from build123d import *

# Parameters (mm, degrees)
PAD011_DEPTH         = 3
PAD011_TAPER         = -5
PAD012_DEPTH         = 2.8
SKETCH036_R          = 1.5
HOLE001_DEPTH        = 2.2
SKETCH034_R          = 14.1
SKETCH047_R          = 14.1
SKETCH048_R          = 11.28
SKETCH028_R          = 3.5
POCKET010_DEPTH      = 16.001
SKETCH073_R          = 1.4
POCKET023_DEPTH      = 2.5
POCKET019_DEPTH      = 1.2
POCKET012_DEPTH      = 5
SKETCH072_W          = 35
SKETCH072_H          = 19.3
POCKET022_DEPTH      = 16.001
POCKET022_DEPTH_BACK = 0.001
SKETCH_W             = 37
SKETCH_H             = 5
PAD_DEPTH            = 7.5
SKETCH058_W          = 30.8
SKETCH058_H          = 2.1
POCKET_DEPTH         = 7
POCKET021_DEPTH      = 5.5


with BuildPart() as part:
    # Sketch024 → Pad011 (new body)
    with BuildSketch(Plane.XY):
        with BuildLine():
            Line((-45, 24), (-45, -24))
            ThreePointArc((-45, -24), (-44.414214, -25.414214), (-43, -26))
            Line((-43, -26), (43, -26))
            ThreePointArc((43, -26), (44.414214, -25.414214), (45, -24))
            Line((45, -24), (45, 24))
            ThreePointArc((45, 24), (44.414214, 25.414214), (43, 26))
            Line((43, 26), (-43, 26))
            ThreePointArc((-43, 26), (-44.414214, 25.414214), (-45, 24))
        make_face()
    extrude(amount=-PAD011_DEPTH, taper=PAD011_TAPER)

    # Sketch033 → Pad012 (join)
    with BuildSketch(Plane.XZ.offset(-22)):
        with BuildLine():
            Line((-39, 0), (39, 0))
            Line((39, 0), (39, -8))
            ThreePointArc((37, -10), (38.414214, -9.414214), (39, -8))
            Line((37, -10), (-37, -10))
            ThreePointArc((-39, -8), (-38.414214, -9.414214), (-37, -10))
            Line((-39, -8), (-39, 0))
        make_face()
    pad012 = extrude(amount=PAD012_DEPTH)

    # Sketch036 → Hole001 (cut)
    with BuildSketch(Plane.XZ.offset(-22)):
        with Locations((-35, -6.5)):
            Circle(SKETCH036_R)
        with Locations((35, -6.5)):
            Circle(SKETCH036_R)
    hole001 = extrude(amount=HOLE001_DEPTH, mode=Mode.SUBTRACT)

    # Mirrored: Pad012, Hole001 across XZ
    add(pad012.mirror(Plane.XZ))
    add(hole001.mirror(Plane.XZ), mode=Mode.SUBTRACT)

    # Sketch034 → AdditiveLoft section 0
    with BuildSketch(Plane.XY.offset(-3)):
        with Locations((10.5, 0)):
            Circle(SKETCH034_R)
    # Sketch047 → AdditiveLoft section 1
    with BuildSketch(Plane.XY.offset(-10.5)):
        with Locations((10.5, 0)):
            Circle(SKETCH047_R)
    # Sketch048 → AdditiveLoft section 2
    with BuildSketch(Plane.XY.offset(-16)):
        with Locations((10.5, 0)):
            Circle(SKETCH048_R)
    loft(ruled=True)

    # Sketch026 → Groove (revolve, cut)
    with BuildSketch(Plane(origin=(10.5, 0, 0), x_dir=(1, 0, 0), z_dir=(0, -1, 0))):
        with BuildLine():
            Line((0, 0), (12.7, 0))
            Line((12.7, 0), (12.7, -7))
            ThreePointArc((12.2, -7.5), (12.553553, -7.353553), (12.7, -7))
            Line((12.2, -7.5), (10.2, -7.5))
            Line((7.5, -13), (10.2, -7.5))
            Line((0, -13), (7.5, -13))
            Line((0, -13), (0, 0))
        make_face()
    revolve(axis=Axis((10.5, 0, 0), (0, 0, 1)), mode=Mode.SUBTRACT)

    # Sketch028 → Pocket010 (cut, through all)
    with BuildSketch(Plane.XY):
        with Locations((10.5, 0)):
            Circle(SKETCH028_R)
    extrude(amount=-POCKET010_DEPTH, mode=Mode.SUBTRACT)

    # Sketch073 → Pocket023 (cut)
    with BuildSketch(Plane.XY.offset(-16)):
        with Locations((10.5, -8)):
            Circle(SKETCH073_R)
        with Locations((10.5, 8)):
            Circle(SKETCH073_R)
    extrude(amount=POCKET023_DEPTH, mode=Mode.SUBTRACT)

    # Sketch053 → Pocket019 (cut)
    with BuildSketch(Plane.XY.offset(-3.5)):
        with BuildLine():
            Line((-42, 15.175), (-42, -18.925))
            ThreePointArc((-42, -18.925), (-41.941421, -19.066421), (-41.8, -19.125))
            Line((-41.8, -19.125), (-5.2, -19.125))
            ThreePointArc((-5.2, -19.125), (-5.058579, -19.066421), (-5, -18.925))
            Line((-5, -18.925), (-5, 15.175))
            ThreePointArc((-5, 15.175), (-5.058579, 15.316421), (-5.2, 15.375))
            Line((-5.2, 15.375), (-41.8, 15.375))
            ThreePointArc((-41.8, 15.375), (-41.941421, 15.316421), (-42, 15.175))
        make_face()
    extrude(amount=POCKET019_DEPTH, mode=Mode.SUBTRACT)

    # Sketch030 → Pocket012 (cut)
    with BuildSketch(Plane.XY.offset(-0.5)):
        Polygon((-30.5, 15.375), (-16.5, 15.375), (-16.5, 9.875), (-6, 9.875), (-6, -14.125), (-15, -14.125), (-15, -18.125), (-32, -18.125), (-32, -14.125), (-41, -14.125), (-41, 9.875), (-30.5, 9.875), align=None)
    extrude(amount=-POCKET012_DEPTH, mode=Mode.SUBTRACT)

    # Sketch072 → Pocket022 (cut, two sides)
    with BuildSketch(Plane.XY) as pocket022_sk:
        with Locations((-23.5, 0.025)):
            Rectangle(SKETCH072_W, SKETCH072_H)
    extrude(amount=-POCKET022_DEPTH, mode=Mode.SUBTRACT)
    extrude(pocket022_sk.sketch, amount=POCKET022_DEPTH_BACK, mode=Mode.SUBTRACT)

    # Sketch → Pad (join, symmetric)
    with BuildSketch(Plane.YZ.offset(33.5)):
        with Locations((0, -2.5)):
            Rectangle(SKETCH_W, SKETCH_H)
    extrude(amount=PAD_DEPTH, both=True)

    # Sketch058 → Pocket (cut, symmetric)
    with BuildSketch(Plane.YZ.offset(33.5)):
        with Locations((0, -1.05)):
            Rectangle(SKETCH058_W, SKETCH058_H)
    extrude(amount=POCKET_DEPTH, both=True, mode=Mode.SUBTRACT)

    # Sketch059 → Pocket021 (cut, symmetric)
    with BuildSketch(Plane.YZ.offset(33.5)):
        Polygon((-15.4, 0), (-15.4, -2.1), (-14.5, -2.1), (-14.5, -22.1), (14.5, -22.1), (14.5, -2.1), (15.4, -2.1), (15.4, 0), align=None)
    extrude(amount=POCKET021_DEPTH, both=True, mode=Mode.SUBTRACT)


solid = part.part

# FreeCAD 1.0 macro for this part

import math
import FreeCAD as App
import Part
import Sketcher
Q = App.Units.Quantity


def add_polygon(sketch, points):
    """Adds a closed chain of lines whose ends are joined by coincident constraints."""
    first, n = sketch.GeometryCount, len(points)
    for a, b in zip(points, points[1:] + points[:1]):
        sketch.addGeometry(Part.LineSegment(App.Vector(*a, 0), App.Vector(*b, 0)), False)
    for i in range(n):
        sketch.addConstraint(Sketcher.Constraint("Coincident", first + i, 2, first + (i + 1) % n, 1))

doc = App.newDocument("Part")
body = doc.addObject("PartDesign::Body", "Body")

sketch1 = body.newObject("Sketcher::SketchObject", "Sketch")
sketch1.AttachmentSupport = (doc.getObject("XY_Plane"), [""])
sketch1.MapMode = "FlatFace"
sketch1.addGeometry([
    Part.LineSegment(App.Vector(-45, 24, 0), App.Vector(-45, -24, 0)),
    Part.ArcOfCircle(Part.Circle(App.Vector(-43, -24, 0), App.Vector(0, 0, 1), 2), math.radians(180), math.radians(270)),
    Part.LineSegment(App.Vector(-43, -26, 0), App.Vector(43, -26, 0)),
    Part.ArcOfCircle(Part.Circle(App.Vector(43, -24, 0), App.Vector(0, 0, 1), 2), math.radians(-90), math.radians(0)),
    Part.LineSegment(App.Vector(45, -24, 0), App.Vector(45, 24, 0)),
    Part.ArcOfCircle(Part.Circle(App.Vector(43, 24, 0), App.Vector(0, 0, 1), 2), math.radians(0), math.radians(90)),
    Part.LineSegment(App.Vector(43, 26, 0), App.Vector(-43, 26, 0)),
    Part.ArcOfCircle(Part.Circle(App.Vector(-43, 24, 0), App.Vector(0, 0, 1), 2), math.radians(90), math.radians(180)),
], False)
sketch1.addConstraint([
    Sketcher.Constraint("Tangent", 0, 2, 1, 1),
    Sketcher.Constraint("Tangent", 1, 2, 2, 1),
    Sketcher.Constraint("Tangent", 2, 2, 3, 1),
    Sketcher.Constraint("Tangent", 3, 2, 4, 1),
    Sketcher.Constraint("Tangent", 4, 2, 5, 1),
    Sketcher.Constraint("Tangent", 5, 2, 6, 1),
    Sketcher.Constraint("Tangent", 6, 2, 7, 1),
    Sketcher.Constraint("Tangent", 7, 2, 0, 1),
    Sketcher.Constraint("Vertical", 0),
    Sketcher.Constraint("Horizontal", 2),
    Sketcher.Constraint("Vertical", 4),
    Sketcher.Constraint("Horizontal", 6),
    Sketcher.Constraint("Equal", 1, 3),
    Sketcher.Constraint("Equal", 3, 5),
    Sketcher.Constraint("Equal", 5, 7),
    Sketcher.Constraint("Symmetric", 1, 3, 5, 3, -1, 1),
    Sketcher.Constraint("Radius", 1, Q("1.999999 mm")),
    Sketcher.Constraint("DistanceX", 2, 1, 2, 2, Q("86 mm")),
    Sketcher.Constraint("DistanceY", 0, 2, 0, 1, Q("48 mm")),
])
pad1 = body.newObject("PartDesign::Pad", "Pad")
pad1.Profile = sketch1
pad1.Length = 3
pad1.Reversed = True
pad1.TaperAngle = 5

sketch2 = body.newObject("Sketcher::SketchObject", "Sketch001")
sketch2.AttachmentSupport = (doc.getObject("XZ_Plane"), [""])
sketch2.MapMode = "FlatFace"
sketch2.AttachmentOffset = App.Placement(App.Vector(0, 0, -22), App.Rotation())
sketch2.addGeometry([
    Part.LineSegment(App.Vector(39, 0, 0), App.Vector(-39, 0, 0)),
    Part.LineSegment(App.Vector(-39, 0, 0), App.Vector(-39, -8, 0)),
    Part.ArcOfCircle(Part.Circle(App.Vector(-37, -8, 0), App.Vector(0, 0, 1), 2), math.radians(180), math.radians(270)),
    Part.LineSegment(App.Vector(-37, -10, 0), App.Vector(37, -10, 0)),
    Part.ArcOfCircle(Part.Circle(App.Vector(37, -8, 0), App.Vector(0, 0, 1), 2), math.radians(-90), math.radians(0)),
    Part.LineSegment(App.Vector(39, -8, 0), App.Vector(39, 0, 0)),
], False)
sketch2.addConstraint([
    Sketcher.Constraint("Coincident", 0, 2, 1, 1),
    Sketcher.Constraint("Tangent", 1, 2, 2, 1),
    Sketcher.Constraint("Tangent", 2, 2, 3, 1),
    Sketcher.Constraint("Tangent", 3, 2, 4, 1),
    Sketcher.Constraint("Tangent", 4, 2, 5, 1),
    Sketcher.Constraint("Coincident", 5, 2, 0, 1),
    Sketcher.Constraint("Horizontal", 0),
    Sketcher.Constraint("Vertical", 1),
    Sketcher.Constraint("Horizontal", 3),
    Sketcher.Constraint("Vertical", 5),
    Sketcher.Constraint("Equal", 2, 4),
    Sketcher.Constraint("Symmetric", 0, 2, 5, 2, -1, 1),
    Sketcher.Constraint("Radius", 2, Q("1.999999 mm")),
    Sketcher.Constraint("DistanceX", 0, 2, 0, 1, Q("78 mm")),
    Sketcher.Constraint("DistanceY", 1, 2, 1, 1, Q("8 mm")),
])
pad2 = body.newObject("PartDesign::Pad", "Pad001")
pad2.Profile = sketch2
pad2.Length = 2.8

sketch3 = body.newObject("Sketcher::SketchObject", "Sketch002")
sketch3.AttachmentSupport = (doc.getObject("XZ_Plane"), [""])
sketch3.MapMode = "FlatFace"
sketch3.AttachmentOffset = App.Placement(App.Vector(0, 0, -22), App.Rotation())
sketch3.addGeometry([
    Part.Circle(App.Vector(-35, -6.5, 0), App.Vector(0, 0, 1), 1.5),
    Part.Circle(App.Vector(35, -6.5, 0), App.Vector(0, 0, 1), 1.5),
], False)
sketch3.addConstraint([
    Sketcher.Constraint("Equal", 0, 1),
    Sketcher.Constraint("Symmetric", 0, 3, 1, 3, -2),
    Sketcher.Constraint("Diameter", 0, Q("3 mm")),
    Sketcher.Constraint("DistanceX", 0, 3, -1, 1, Q("35 mm")),
    Sketcher.Constraint("DistanceY", 0, 3, -1, 1, Q("6.5 mm")),
])
pocket1 = body.newObject("PartDesign::Pocket", "Pocket")
pocket1.Profile = sketch3
pocket1.Length = 2.2
pocket1.Reversed = True
doc.recompute()

mirrored = body.newObject("PartDesign::Mirrored", "Mirrored")
mirrored.Originals = [pad2, pocket1]
mirrored.MirrorPlane = (doc.getObject("XZ_Plane"), [""])
body.Tip = mirrored

sketch4 = body.newObject("Sketcher::SketchObject", "Sketch003")
sketch4.AttachmentSupport = (doc.getObject("XY_Plane"), [""])
sketch4.MapMode = "FlatFace"
sketch4.AttachmentOffset = App.Placement(App.Vector(0, 0, -3), App.Rotation())
sketch4.addGeometry(Part.Circle(App.Vector(10, 0, 0), App.Vector(0, 0, 1), 14), False)
sketch4.addConstraint([
    Sketcher.Constraint("PointOnObject", 0, 3, -1),
    Sketcher.Constraint("Diameter", 0, Q("28.2 mm")),
    Sketcher.Constraint("DistanceX", -1, 1, 0, 3, Q("10.5 mm")),
])

sketch5 = body.newObject("Sketcher::SketchObject", "Sketch004")
sketch5.AttachmentSupport = (doc.getObject("XY_Plane"), [""])
sketch5.MapMode = "FlatFace"
sketch5.AttachmentOffset = App.Placement(App.Vector(0, 0, -10.5), App.Rotation())
sketch5.addGeometry(Part.Circle(App.Vector(10, 0, 0), App.Vector(0, 0, 1), 14), False)
sketch5.addConstraint([
    Sketcher.Constraint("PointOnObject", 0, 3, -1),
    Sketcher.Constraint("Diameter", 0, Q("28.2 mm")),
    Sketcher.Constraint("DistanceX", -1, 1, 0, 3, Q("10.5 mm")),
])

sketch6 = body.newObject("Sketcher::SketchObject", "Sketch005")
sketch6.AttachmentSupport = (doc.getObject("XY_Plane"), [""])
sketch6.MapMode = "FlatFace"
sketch6.AttachmentOffset = App.Placement(App.Vector(0, 0, -16), App.Rotation())
sketch6.addGeometry(Part.Circle(App.Vector(10, 0, 0), App.Vector(0, 0, 1), 11), False)
sketch6.addConstraint([
    Sketcher.Constraint("PointOnObject", 0, 3, -1),
    Sketcher.Constraint("Diameter", 0, Q("22.56 mm")),
    Sketcher.Constraint("DistanceX", -1, 1, 0, 3, Q("10.5 mm")),
])

additiveloft = body.newObject("PartDesign::AdditiveLoft", "AdditiveLoft")
additiveloft.Profile = sketch4
additiveloft.Sections = [sketch5, sketch6]
additiveloft.Ruled = True

sketch7 = body.newObject("Sketcher::SketchObject", "Sketch006")
sketch7.AttachmentSupport = (doc.getObject("XZ_Plane"), [""])
sketch7.MapMode = "FlatFace"
sketch7.addGeometry([
    Part.LineSegment(App.Vector(23.2, 0, 0), App.Vector(10.5, 0, 0)),
    Part.LineSegment(App.Vector(10.5, 0, 0), App.Vector(10.5, -13, 0)),
    Part.LineSegment(App.Vector(10.5, -13, 0), App.Vector(18, -13, 0)),
    Part.LineSegment(App.Vector(18, -13, 0), App.Vector(20.7, -7.5, 0)),
    Part.LineSegment(App.Vector(20.7, -7.5, 0), App.Vector(22.7, -7.5, 0)),
    Part.ArcOfCircle(Part.Circle(App.Vector(22.7, -7, 0), App.Vector(0, 0, 1), 0.5), math.radians(-90), math.radians(0)),
    Part.LineSegment(App.Vector(23.2, -7, 0), App.Vector(23.2, 0, 0)),
], False)
sketch7.addGeometry(Part.LineSegment(App.Vector(10.5, -13, 0), App.Vector(10.5, 0, 0)), True)
sketch7.addConstraint([
    Sketcher.Constraint("Coincident", 0, 2, 1, 1),
    Sketcher.Constraint("Coincident", 1, 2, 2, 1),
    Sketcher.Constraint("Coincident", 2, 2, 3, 1),
    Sketcher.Constraint("Coincident", 3, 2, 4, 1),
    Sketcher.Constraint("Coincident", 4, 2, 5, 1),
    Sketcher.Constraint("Coincident", 5, 2, 6, 1),
    Sketcher.Constraint("Coincident", 6, 2, 0, 1),
    Sketcher.Constraint("Horizontal", 0),
    Sketcher.Constraint("Vertical", 1),
    Sketcher.Constraint("Horizontal", 2),
    Sketcher.Constraint("Horizontal", 4),
    Sketcher.Constraint("Vertical", 6),
    Sketcher.Constraint("Vertical", 7),
    Sketcher.Constraint("Coincident", 7, 1, 1, 2),
    Sketcher.Constraint("PointOnObject", 0, 2, -1),
    Sketcher.Constraint("PointOnObject", 7, 2, -1),
    Sketcher.Constraint("Vertical", 5, 3, 4, 2),
    Sketcher.Constraint("Radius", 5, Q("0.500001 mm")),
    Sketcher.Constraint("DistanceX", 4, 1, 4, 2, Q("2 mm")),
    Sketcher.Constraint("DistanceY", 1, 2, 1, 1, Q("13 mm")),
    Sketcher.Constraint("DistanceY", 6, 1, 6, 2, Q("7 mm")),
    Sketcher.Constraint("DistanceX", 0, 2, 0, 1, Q("12.7 mm")),
    Sketcher.Constraint("DistanceX", 2, 1, 2, 2, Q("7.5 mm")),
    Sketcher.Constraint("DistanceY", 5, 3, -1, 1, Q("6.999999 mm")),
    Sketcher.Constraint("DistanceX", -1, 1, 2, 2, Q("18 mm")),
])
groove = body.newObject("PartDesign::Groove", "Groove")
groove.Profile = sketch7
groove.ReferenceAxis = (sketch7, ["Axis0"])
groove.Angle = 360

sketch8 = body.newObject("Sketcher::SketchObject", "Sketch007")
sketch8.AttachmentSupport = (doc.getObject("XY_Plane"), [""])
sketch8.MapMode = "FlatFace"
sketch8.addGeometry(Part.Circle(App.Vector(10.5, 0, 0), App.Vector(0, 0, 1), 3.5), False)
sketch8.addConstraint([
    Sketcher.Constraint("PointOnObject", 0, 3, -1),
    Sketcher.Constraint("Diameter", 0, Q("7 mm")),
    Sketcher.Constraint("DistanceX", -1, 1, 0, 3, Q("10.5 mm")),
])
pocket2 = body.newObject("PartDesign::Pocket", "Pocket001")
pocket2.Profile = sketch8
pocket2.Type = "ThroughAll"

sketch9 = body.newObject("Sketcher::SketchObject", "Sketch008")
sketch9.AttachmentSupport = (doc.getObject("XY_Plane"), [""])
sketch9.MapMode = "FlatFace"
sketch9.AttachmentOffset = App.Placement(App.Vector(0, 0, -16), App.Rotation())
sketch9.addGeometry([
    Part.Circle(App.Vector(10.5, -8, 0), App.Vector(0, 0, 1), 1.4),
    Part.Circle(App.Vector(10.5, 8, 0), App.Vector(0, 0, 1), 1.4),
], False)
sketch9.addConstraint([
    Sketcher.Constraint("Equal", 0, 1),
    Sketcher.Constraint("Symmetric", 0, 3, 1, 3, -1),
    Sketcher.Constraint("Diameter", 0, Q("2.8 mm")),
    Sketcher.Constraint("DistanceY", 0, 3, -1, 1, Q("8 mm")),
    Sketcher.Constraint("DistanceX", -1, 1, 0, 3, Q("10.5 mm")),
])
pocket3 = body.newObject("PartDesign::Pocket", "Pocket002")
pocket3.Profile = sketch9
pocket3.Length = 2.5
pocket3.Reversed = True

sketch10 = body.newObject("Sketcher::SketchObject", "Sketch009")
sketch10.AttachmentSupport = (doc.getObject("XY_Plane"), [""])
sketch10.MapMode = "FlatFace"
sketch10.AttachmentOffset = App.Placement(App.Vector(0, 0, -3.5), App.Rotation())
sketch10.addGeometry([
    Part.LineSegment(App.Vector(-42, 15.18, 0), App.Vector(-42, -18.93, 0)),
    Part.ArcOfCircle(Part.Circle(App.Vector(-41.8, -18.92, 0), App.Vector(0, 0, 1), 0.2), math.radians(-180), math.radians(-90)),
    Part.LineSegment(App.Vector(-41.8, -19.12, 0), App.Vector(-5.2, -19.12, 0)),
    Part.ArcOfCircle(Part.Circle(App.Vector(-5.2, -18.92, 0), App.Vector(0, 0, 1), 0.2), math.radians(-90), math.radians(0)),
    Part.LineSegment(App.Vector(-5, -18.93, 0), App.Vector(-5, 15.18, 0)),
    Part.ArcOfCircle(Part.Circle(App.Vector(-5.2, 15.17, 0), App.Vector(0, 0, 1), 0.2), math.radians(0), math.radians(90)),
    Part.LineSegment(App.Vector(-5.2, 15.38, 0), App.Vector(-41.8, 15.38, 0)),
    Part.ArcOfCircle(Part.Circle(App.Vector(-41.8, 15.17, 0), App.Vector(0, 0, 1), 0.2), math.radians(90), math.radians(180)),
], False)
sketch10.addConstraint([
    Sketcher.Constraint("Coincident", 0, 2, 1, 1),
    Sketcher.Constraint("Coincident", 1, 2, 2, 1),
    Sketcher.Constraint("Coincident", 2, 2, 3, 1),
    Sketcher.Constraint("Coincident", 3, 2, 4, 1),
    Sketcher.Constraint("Coincident", 4, 2, 5, 1),
    Sketcher.Constraint("Coincident", 5, 2, 6, 1),
    Sketcher.Constraint("Coincident", 6, 2, 7, 1),
    Sketcher.Constraint("Coincident", 7, 2, 0, 1),
    Sketcher.Constraint("Vertical", 0),
    Sketcher.Constraint("Horizontal", 2),
    Sketcher.Constraint("Vertical", 4),
    Sketcher.Constraint("Horizontal", 6),
    Sketcher.Constraint("Equal", 1, 3),
    Sketcher.Constraint("Equal", 3, 5),
    Sketcher.Constraint("Equal", 5, 7),
    Sketcher.Constraint("Horizontal", 3, 3, 0, 2),
    Sketcher.Constraint("Horizontal", 0, 2, 3, 2),
    Sketcher.Constraint("Horizontal", 7, 3, 4, 2),
    Sketcher.Constraint("Horizontal", 4, 2, 7, 2),
    Sketcher.Constraint("Vertical", 7, 3, 1, 2),
    Sketcher.Constraint("Vertical", 5, 3, 2, 2),
    Sketcher.Constraint("Vertical", 2, 2, 5, 2),
    Sketcher.Constraint("Vertical", 1, 2, 6, 2),
    Sketcher.Constraint("Radius", 1, Q("0.200001 mm")),
    Sketcher.Constraint("DistanceX", 2, 1, 2, 2, Q("36.6 mm")),
    Sketcher.Constraint("DistanceY", 0, 2, 0, 1, Q("34.1 mm")),
    Sketcher.Constraint("DistanceX", 0, 2, -1, 1, Q("42 mm")),
    Sketcher.Constraint("DistanceY", 1, 3, -1, 1, Q("18.924999 mm")),
])
pocket4 = body.newObject("PartDesign::Pocket", "Pocket003")
pocket4.Profile = sketch10
pocket4.Length = 1.2
pocket4.Reversed = True

sketch11 = body.newObject("Sketcher::SketchObject", "Sketch010")
sketch11.AttachmentSupport = (doc.getObject("XY_Plane"), [""])
sketch11.MapMode = "FlatFace"
sketch11.AttachmentOffset = App.Placement(App.Vector(0, 0, -0.5), App.Rotation())
add_polygon(sketch11, [(-16.5, 15.4), (-30.5, 15.4), (-30.5, 9.9), (-41, 9.9), (-41, -14.1), (-32, -14.1), (-32, -18.1), (-15, -18.1), (-15, -14.1), (-6, -14.1), (-6, 9.9), (-16.5, 9.9)])
sketch11.addConstraint([
    Sketcher.Constraint("Horizontal", 0),
    Sketcher.Constraint("Vertical", 1),
    Sketcher.Constraint("Horizontal", 2),
    Sketcher.Constraint("Vertical", 3),
    Sketcher.Constraint("Horizontal", 4),
    Sketcher.Constraint("Vertical", 5),
    Sketcher.Constraint("Horizontal", 6),
    Sketcher.Constraint("Vertical", 7),
    Sketcher.Constraint("Horizontal", 8),
    Sketcher.Constraint("Vertical", 9),
    Sketcher.Constraint("Horizontal", 10),
    Sketcher.Constraint("Vertical", 11),
    Sketcher.Constraint("Horizontal", 4, 2, 7, 2),
    Sketcher.Constraint("Horizontal", 2, 2, 9, 2),
    Sketcher.Constraint("Equal", 4, 8),
    Sketcher.Constraint("Equal", 2, 10),
    Sketcher.Constraint("DistanceX", 0, 2, 0, 1, Q("14 mm")),
    Sketcher.Constraint("DistanceX", 4, 1, 4, 2, Q("9 mm")),
    Sketcher.Constraint("DistanceX", 6, 1, 6, 2, Q("17 mm")),
    Sketcher.Constraint("DistanceY", 3, 2, 3, 1, Q("24 mm")),
    Sketcher.Constraint("DistanceY", 5, 2, 5, 1, Q("4 mm")),
    Sketcher.Constraint("DistanceY", 1, 2, 1, 1, Q("5.5 mm")),
    Sketcher.Constraint("DistanceX", 2, 2, -1, 1, Q("41 mm")),
    Sketcher.Constraint("DistanceY", -1, 1, 0, 2, Q("15.375 mm")),
])
pocket5 = body.newObject("PartDesign::Pocket", "Pocket004")
pocket5.Profile = sketch11
pocket5.Length = 5

sketch12 = body.newObject("Sketcher::SketchObject", "Sketch011")
sketch12.AttachmentSupport = (doc.getObject("XY_Plane"), [""])
sketch12.MapMode = "FlatFace"
add_polygon(sketch12, [(-41, 10), (-41, -10), (-6, -10), (-6, 10)])
sketch12.addConstraint([
    Sketcher.Constraint("Vertical", 0),
    Sketcher.Constraint("Horizontal", 1),
    Sketcher.Constraint("Vertical", 2),
    Sketcher.Constraint("Horizontal", 3),
    Sketcher.Constraint("DistanceX", 1, 1, 1, 2, Q("35 mm")),
    Sketcher.Constraint("DistanceY", 0, 2, 0, 1, Q("19.3 mm")),
    Sketcher.Constraint("DistanceX", 0, 2, -1, 1, Q("41 mm")),
    Sketcher.Constraint("DistanceY", 0, 2, -1, 1, Q("9.625 mm")),
])
pocket6 = body.newObject("PartDesign::Pocket", "Pocket005")
pocket6.Profile = sketch12
pocket6.Type = "ThroughAll"
pocket6.Midplane = True

sketch13 = body.newObject("Sketcher::SketchObject", "Sketch012")
sketch13.AttachmentSupport = (doc.getObject("YZ_Plane"), [""])
sketch13.MapMode = "FlatFace"
sketch13.AttachmentOffset = App.Placement(App.Vector(0, 0, 33.5), App.Rotation())
add_polygon(sketch13, [(-18, 0), (-18, -5), (18, -5), (18, 0)])
sketch13.addConstraint([
    Sketcher.Constraint("Vertical", 0),
    Sketcher.Constraint("Horizontal", 1),
    Sketcher.Constraint("Vertical", 2),
    Sketcher.Constraint("Horizontal", 3),
    Sketcher.Constraint("Symmetric", 2, 2, 3, 2, -1, 1),
    Sketcher.Constraint("DistanceX", 1, 1, 1, 2, Q("37 mm")),
    Sketcher.Constraint("DistanceY", 0, 2, 0, 1, Q("5 mm")),
])
pad3 = body.newObject("PartDesign::Pad", "Pad002")
pad3.Profile = sketch13
pad3.Length = 15
pad3.Midplane = True

sketch14 = body.newObject("Sketcher::SketchObject", "Sketch013")
sketch14.AttachmentSupport = (doc.getObject("YZ_Plane"), [""])
sketch14.MapMode = "FlatFace"
sketch14.AttachmentOffset = App.Placement(App.Vector(0, 0, 33.5), App.Rotation())
add_polygon(sketch14, [(-15.4, 0), (-15.4, -2.1), (15.4, -2.1), (15.4, 0)])
sketch14.addConstraint([
    Sketcher.Constraint("Vertical", 0),
    Sketcher.Constraint("Horizontal", 1),
    Sketcher.Constraint("Vertical", 2),
    Sketcher.Constraint("Horizontal", 3),
    Sketcher.Constraint("Symmetric", 2, 2, 3, 2, -1, 1),
    Sketcher.Constraint("DistanceX", 1, 1, 1, 2, Q("30.8 mm")),
    Sketcher.Constraint("DistanceY", 0, 2, 0, 1, Q("2.1 mm")),
])
pocket7 = body.newObject("PartDesign::Pocket", "Pocket006")
pocket7.Profile = sketch14
pocket7.Length = 14
pocket7.Midplane = True

sketch15 = body.newObject("Sketcher::SketchObject", "Sketch014")
sketch15.AttachmentSupport = (doc.getObject("YZ_Plane"), [""])
sketch15.MapMode = "FlatFace"
sketch15.AttachmentOffset = App.Placement(App.Vector(0, 0, 33.5), App.Rotation())
add_polygon(sketch15, [(-15.4, 0), (-15.4, -2.1), (-14.5, -2.1), (-14.5, -22.1), (14.5, -22.1), (14.5, -2.1), (15.4, -2.1), (15.4, 0)])
sketch15.addConstraint([
    Sketcher.Constraint("Vertical", 0),
    Sketcher.Constraint("Horizontal", 1),
    Sketcher.Constraint("Vertical", 2),
    Sketcher.Constraint("Horizontal", 3),
    Sketcher.Constraint("Vertical", 4),
    Sketcher.Constraint("Horizontal", 5),
    Sketcher.Constraint("Vertical", 6),
    Sketcher.Constraint("Horizontal", 7),
    Sketcher.Constraint("Symmetric", 6, 2, 7, 2, -1, 1),
    Sketcher.Constraint("Symmetric", 1, 2, 4, 2, -2),
    Sketcher.Constraint("DistanceX", 3, 1, 3, 2, Q("29 mm")),
    Sketcher.Constraint("DistanceY", 2, 2, 2, 1, Q("20 mm")),
    Sketcher.Constraint("DistanceX", 1, 1, 1, 2, Q("0.9 mm")),
    Sketcher.Constraint("DistanceY", 0, 2, 0, 1, Q("2.1 mm")),
])
pocket8 = body.newObject("PartDesign::Pocket", "Pocket007")
pocket8.Profile = sketch15
pocket8.Length = 11
pocket8.Midplane = True

doc.recompute()
